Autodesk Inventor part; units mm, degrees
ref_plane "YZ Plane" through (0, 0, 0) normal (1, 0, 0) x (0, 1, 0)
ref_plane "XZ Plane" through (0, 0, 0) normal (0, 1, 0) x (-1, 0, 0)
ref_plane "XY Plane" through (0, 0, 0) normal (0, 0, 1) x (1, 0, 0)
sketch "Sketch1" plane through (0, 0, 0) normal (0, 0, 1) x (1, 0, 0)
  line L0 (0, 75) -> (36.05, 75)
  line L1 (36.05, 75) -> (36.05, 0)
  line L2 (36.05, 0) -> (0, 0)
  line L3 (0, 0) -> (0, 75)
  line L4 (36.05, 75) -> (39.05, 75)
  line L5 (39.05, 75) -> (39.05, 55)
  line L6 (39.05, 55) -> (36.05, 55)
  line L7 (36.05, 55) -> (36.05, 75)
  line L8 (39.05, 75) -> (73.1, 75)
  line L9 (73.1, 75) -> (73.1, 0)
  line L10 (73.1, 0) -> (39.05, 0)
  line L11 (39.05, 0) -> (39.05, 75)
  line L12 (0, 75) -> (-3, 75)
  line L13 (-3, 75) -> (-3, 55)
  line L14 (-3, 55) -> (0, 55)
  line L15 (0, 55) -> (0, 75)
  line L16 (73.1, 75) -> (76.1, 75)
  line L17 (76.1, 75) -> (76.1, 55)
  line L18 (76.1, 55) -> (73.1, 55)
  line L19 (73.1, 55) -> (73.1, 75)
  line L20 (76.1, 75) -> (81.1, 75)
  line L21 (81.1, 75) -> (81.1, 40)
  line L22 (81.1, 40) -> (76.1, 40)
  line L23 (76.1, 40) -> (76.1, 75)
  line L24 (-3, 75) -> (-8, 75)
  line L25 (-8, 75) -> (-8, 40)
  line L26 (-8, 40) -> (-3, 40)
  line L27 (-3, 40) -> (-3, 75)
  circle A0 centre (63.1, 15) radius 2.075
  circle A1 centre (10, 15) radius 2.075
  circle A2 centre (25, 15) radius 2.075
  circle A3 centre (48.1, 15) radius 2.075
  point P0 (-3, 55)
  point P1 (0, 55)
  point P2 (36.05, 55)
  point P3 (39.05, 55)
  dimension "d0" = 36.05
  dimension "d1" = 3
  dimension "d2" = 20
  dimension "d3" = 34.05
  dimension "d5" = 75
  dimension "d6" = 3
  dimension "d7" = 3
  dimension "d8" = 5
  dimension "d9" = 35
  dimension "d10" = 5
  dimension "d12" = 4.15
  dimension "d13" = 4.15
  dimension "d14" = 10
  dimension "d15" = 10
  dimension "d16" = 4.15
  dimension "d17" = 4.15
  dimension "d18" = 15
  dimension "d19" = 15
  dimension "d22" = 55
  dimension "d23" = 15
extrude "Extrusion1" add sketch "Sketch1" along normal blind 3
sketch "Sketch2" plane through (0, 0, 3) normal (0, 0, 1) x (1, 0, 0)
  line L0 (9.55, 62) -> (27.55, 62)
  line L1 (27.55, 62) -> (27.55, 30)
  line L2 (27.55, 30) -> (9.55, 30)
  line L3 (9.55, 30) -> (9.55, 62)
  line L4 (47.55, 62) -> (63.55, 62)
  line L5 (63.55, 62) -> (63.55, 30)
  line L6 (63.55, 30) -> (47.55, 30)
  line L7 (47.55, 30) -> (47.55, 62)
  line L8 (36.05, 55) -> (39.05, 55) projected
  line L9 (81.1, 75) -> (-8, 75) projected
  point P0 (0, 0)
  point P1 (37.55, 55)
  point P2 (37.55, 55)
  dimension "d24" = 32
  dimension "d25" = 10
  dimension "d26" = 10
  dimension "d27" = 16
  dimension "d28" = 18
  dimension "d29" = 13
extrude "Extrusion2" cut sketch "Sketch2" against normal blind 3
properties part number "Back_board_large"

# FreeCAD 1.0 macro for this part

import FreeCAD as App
import Part
import Sketcher

V = App.Vector
Q = App.Units.Quantity


def add_polygon(sketch, points):
    """Adds a closed chain of lines whose ends are joined by coincident constraints."""
    first, n = sketch.GeometryCount, len(points)
    for a, b in zip(points, points[1:] + points[:1]):
        sketch.addGeometry(Part.LineSegment(App.Vector(*a, 0), App.Vector(*b, 0)), False)
    for i in range(n):
        sketch.addConstraint(Sketcher.Constraint("Coincident", first + i, 2, first + (i + 1) % n, 1))

doc = App.newDocument("Part")
body = doc.addObject("PartDesign::Body", "Body")

# Sketch on XY plane
sketch1 = body.newObject("Sketcher::SketchObject", "Sketch")
sketch1.AttachmentSupport = (doc.getObject("XY_Plane"), [""])
sketch1.MapMode = "FlatFace"
add_polygon(sketch1, [(-8, 75), (-8, 40), (-3, 40), (-3, 55), (0, 55), (0, 0), (36, 0), (36, 55), (39, 55), (39, 0), (73.1, 0), (73.1, 55), (76.1, 55), (76.1, 40), (81.1, 40), (81.1, 75)])  # lines 0-15
sketch1.addGeometry(Part.Circle(V(10, 15, 0), V(0, 0, 1), 2.1), False)  # 16
sketch1.addGeometry(Part.Circle(V(25, 15, 0), V(0, 0, 1), 2.1), False)  # 17
sketch1.addGeometry(Part.Circle(V(63.1, 15, 0), V(0, 0, 1), 2.1), False)  # 18
sketch1.addGeometry(Part.Circle(V(48.1, 15, 0), V(0, 0, 1), 2.1), False)  # 19
sketch1.addConstraint(Sketcher.Constraint("Vertical", 0))
sketch1.addConstraint(Sketcher.Constraint("Horizontal", 1))
sketch1.addConstraint(Sketcher.Constraint("Vertical", 2))
sketch1.addConstraint(Sketcher.Constraint("Horizontal", 3))
sketch1.addConstraint(Sketcher.Constraint("Vertical", 4))
sketch1.addConstraint(Sketcher.Constraint("Horizontal", 5))
sketch1.addConstraint(Sketcher.Constraint("Vertical", 6))
sketch1.addConstraint(Sketcher.Constraint("Horizontal", 7))
sketch1.addConstraint(Sketcher.Constraint("Vertical", 8))
sketch1.addConstraint(Sketcher.Constraint("Horizontal", 9))
sketch1.addConstraint(Sketcher.Constraint("Vertical", 10))
sketch1.addConstraint(Sketcher.Constraint("Horizontal", 11))
sketch1.addConstraint(Sketcher.Constraint("Vertical", 12))
sketch1.addConstraint(Sketcher.Constraint("Horizontal", 13))
sketch1.addConstraint(Sketcher.Constraint("Vertical", 14))
sketch1.addConstraint(Sketcher.Constraint("Horizontal", 15))
sketch1.addConstraint(Sketcher.Constraint("Coincident", 4, 2, -1, 1))
sketch1.addConstraint(Sketcher.Constraint("Equal", 16, 17))
sketch1.addConstraint(Sketcher.Constraint("Equal", 17, 18))
sketch1.addConstraint(Sketcher.Constraint("Equal", 18, 19))
sketch1.addConstraint(Sketcher.Constraint("PointOnObject", 8, 2, -1))
sketch1.addConstraint(Sketcher.Constraint("Horizontal", 16, 3, 17, 3))
sketch1.addConstraint(Sketcher.Constraint("Horizontal", 17, 3, 18, 3))
sketch1.addConstraint(Sketcher.Constraint("Horizontal", 18, 3, 19, 3))
sketch1.addConstraint(Sketcher.Constraint("Horizontal", 3, 2, 6, 2))
sketch1.addConstraint(Sketcher.Constraint("Horizontal", 7, 2, 10, 2))
sketch1.addConstraint(Sketcher.Constraint("Horizontal", 1, 2, 12, 2))
sketch1.addConstraint(Sketcher.Constraint("Equal", 3, 7))
sketch1.addConstraint(Sketcher.Constraint("Equal", 7, 11))
sketch1.addConstraint(Sketcher.Constraint("Equal", 1, 13))
sketch1.addConstraint(Sketcher.Constraint("Diameter", 16, Q("4.15 mm")))
sketch1.addConstraint(Sketcher.Constraint("DistanceX", 1, 1, 1, 2, Q("5 mm")))
sketch1.addConstraint(Sketcher.Constraint("DistanceX", 3, 1, 3, 2, Q("3 mm")))
sketch1.addConstraint(Sketcher.Constraint("DistanceY", 0, 2, 0, 1, Q("35 mm")))
sketch1.addConstraint(Sketcher.Constraint("DistanceY", 2, 1, 2, 2, Q("15 mm")))
sketch1.addConstraint(Sketcher.Constraint("DistanceY", 4, 2, 4, 1, Q("55 mm")))
sketch1.addConstraint(Sketcher.Constraint("DistanceX", -1, 1, 16, 3, Q("10 mm")))
sketch1.addConstraint(Sketcher.Constraint("DistanceY", -1, 1, 16, 3, Q("15 mm")))
sketch1.addConstraint(Sketcher.Constraint("DistanceX", 16, 3, 17, 3, Q("15 mm")))
sketch1.addConstraint(Sketcher.Constraint("DistanceX", 19, 3, 18, 3, Q("15 mm")))
sketch1.addConstraint(Sketcher.Constraint("DistanceX", 18, 3, 9, 2, Q("10 mm")))
sketch1.addConstraint(Sketcher.Constraint("DistanceX", 5, 1, 5, 2, Q("36.05 mm")))
sketch1.addConstraint(Sketcher.Constraint("DistanceX", 9, 1, 9, 2, Q("34.05 mm")))
pad1 = body.newObject("PartDesign::Pad", "Pad")
pad1.Profile = sketch1
pad1.Length = 3

# Sketch on XY plane
sketch2 = body.newObject("Sketcher::SketchObject", "Sketch001")
sketch2.AttachmentSupport = (doc.getObject("XY_Plane"), [""])
sketch2.MapMode = "FlatFace"
sketch2.AttachmentOffset = App.Placement(V(0, 0, 3), App.Rotation())
add_polygon(sketch2, [(28, 62), (10, 62), (10, 30), (28, 30)])  # lines 0-3
add_polygon(sketch2, [(64, 62), (48, 62), (48, 30), (64, 30)])  # lines 4-7
sketch2.addConstraint(Sketcher.Constraint("Horizontal", 0))
sketch2.addConstraint(Sketcher.Constraint("Vertical", 1))
sketch2.addConstraint(Sketcher.Constraint("Horizontal", 2))
sketch2.addConstraint(Sketcher.Constraint("Vertical", 3))
sketch2.addConstraint(Sketcher.Constraint("Horizontal", 4))
sketch2.addConstraint(Sketcher.Constraint("Vertical", 5))
sketch2.addConstraint(Sketcher.Constraint("Horizontal", 6))
sketch2.addConstraint(Sketcher.Constraint("Vertical", 7))
sketch2.addConstraint(Sketcher.Constraint("Horizontal", 3, 2, 4, 2))
sketch2.addConstraint(Sketcher.Constraint("Horizontal", 2, 2, 5, 2))
sketch2.addConstraint(Sketcher.Constraint("DistanceX", 0, 2, 0, 1, Q("18 mm")))
sketch2.addConstraint(Sketcher.Constraint("DistanceX", 4, 2, 4, 1, Q("16 mm")))
sketch2.addConstraint(Sketcher.Constraint("DistanceY", 1, 2, 1, 1, Q("32 mm")))
sketch2.addConstraint(Sketcher.Constraint("DistanceY", -1, 1, 0, 2, Q("62 mm")))
sketch2.addConstraint(Sketcher.Constraint("DistanceX", 3, 2, 4, 2, Q("20 mm")))
sketch2.addConstraint(Sketcher.Constraint("DistanceX", -1, 1, 0, 2, Q("9.55 mm")))
pocket1 = body.newObject("PartDesign::Pocket", "Pocket")
pocket1.Profile = sketch2
pocket1.Length = 3

doc.recompute()
